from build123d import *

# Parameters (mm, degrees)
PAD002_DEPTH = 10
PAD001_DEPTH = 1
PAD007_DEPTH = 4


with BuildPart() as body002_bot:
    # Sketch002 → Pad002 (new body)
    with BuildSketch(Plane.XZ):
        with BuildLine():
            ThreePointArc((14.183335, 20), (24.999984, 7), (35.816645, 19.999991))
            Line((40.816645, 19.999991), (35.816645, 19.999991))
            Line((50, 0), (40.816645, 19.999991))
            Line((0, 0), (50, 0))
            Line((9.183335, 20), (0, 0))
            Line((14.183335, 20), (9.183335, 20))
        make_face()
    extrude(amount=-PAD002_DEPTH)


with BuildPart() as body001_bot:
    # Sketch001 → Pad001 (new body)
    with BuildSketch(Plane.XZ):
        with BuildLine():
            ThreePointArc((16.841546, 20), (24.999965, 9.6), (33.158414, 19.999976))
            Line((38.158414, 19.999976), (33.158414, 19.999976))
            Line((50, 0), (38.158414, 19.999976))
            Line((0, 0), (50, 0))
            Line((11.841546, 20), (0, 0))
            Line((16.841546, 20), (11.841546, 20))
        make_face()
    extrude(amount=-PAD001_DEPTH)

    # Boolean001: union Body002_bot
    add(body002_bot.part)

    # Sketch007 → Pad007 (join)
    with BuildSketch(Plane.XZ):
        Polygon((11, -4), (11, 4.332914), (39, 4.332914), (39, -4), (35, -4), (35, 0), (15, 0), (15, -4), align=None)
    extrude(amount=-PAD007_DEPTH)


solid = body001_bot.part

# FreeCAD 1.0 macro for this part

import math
import FreeCAD as App
import Part
import Sketcher

V = App.Vector
Q = App.Units.Quantity

doc = App.newDocument("Part")
params = doc.addObject("Spreadsheet::Sheet", "Params")
for row, (alias, value) in enumerate([
    ("sketch1_radius", "11 mm"),
    ("sketch1_width", "5 mm"),
    ("sketch1_width2", "50 mm"),
    ("pad1_length", "10 mm"),
    ("sketch2_radius", "8.4 mm"),
    ("sketch2_width", "5 mm"),
    ("sketch2_width2", "50 mm"),
    ("pad2_length", "1 mm"),
    ("sketch3_width", "4 mm"),
    ("sketch3_width2", "20 mm"),
    ("pad3_length", "4 mm"),
], start=1):
    params.set(f"A{row}", alias)
    params.set(f"B{row}", "=" + value)
    params.setAlias(f"B{row}", alias)

body = doc.addObject("PartDesign::Body", "Body")

sketch1 = body.newObject("Sketcher::SketchObject", "Sketch")
sketch1.AttachmentSupport = (doc.getObject("XZ_Plane"), [""])
sketch1.MapMode = "FlatFace"
sketch1.addGeometry(Part.ArcOfCircle(Part.Circle(V(25, 18, 0), V(0, 0, 1), 11), math.radians(170), math.radians(370)), False)
sketch1.addGeometry(Part.LineSegment(V(14, 20, 0), V(9, 20, 0)), False)
sketch1.addGeometry(Part.LineSegment(V(9, 20, 0), V(0, 0, 0)), False)
sketch1.addGeometry(Part.LineSegment(V(0, 0, 0), V(50, 0, 0)), False)
sketch1.addGeometry(Part.LineSegment(V(50, 0, 0), V(41, 20, 0)), False)
sketch1.addGeometry(Part.LineSegment(V(41, 20, 0), V(36, 20, 0)), False)
sketch1.addConstraint(Sketcher.Constraint("Coincident", 0, 1, 1, 1))
sketch1.addConstraint(Sketcher.Constraint("Coincident", 1, 2, 2, 1))
sketch1.addConstraint(Sketcher.Constraint("Coincident", 2, 2, 3, 1))
sketch1.addConstraint(Sketcher.Constraint("Coincident", 3, 2, 4, 1))
sketch1.addConstraint(Sketcher.Constraint("Coincident", 4, 2, 5, 1))
sketch1.addConstraint(Sketcher.Constraint("Coincident", 5, 2, 0, 2))
sketch1.addConstraint(Sketcher.Constraint("Horizontal", 1))
sketch1.addConstraint(Sketcher.Constraint("Horizontal", 3))
sketch1.addConstraint(Sketcher.Constraint("Horizontal", 5))
sketch1.addConstraint(Sketcher.Constraint("Coincident", 2, 2, -1, 1))
sketch1.addConstraint(Sketcher.Constraint("Equal", 1, 5))
sketch1.addConstraint(Sketcher.Constraint("Equal", 2, 4))
sketch1.addConstraint(Sketcher.Constraint("Radius", 0, Q("11 mm")))
sketch1.addConstraint(Sketcher.Constraint("DistanceX", 1, 2, 1, 1, Q("5 mm")))
sketch1.addConstraint(Sketcher.Constraint("DistanceX", 3, 1, 3, 2, Q("50 mm")))
sketch1.addConstraint(Sketcher.Constraint("DistanceY", -1, 1, 0, 3, Q("18 mm")))
sketch1.addConstraint(Sketcher.Constraint("DistanceY", -1, 1, 0, 1, Q("20 mm")))
sketch1.addConstraint(Sketcher.Constraint("Distance", 2, Q("22.007581 mm")))
sketch1.setExpression("Constraints[12]", "Params.sketch1_radius")
sketch1.setExpression("Constraints[13]", "Params.sketch1_width")
sketch1.setExpression("Constraints[14]", "Params.sketch1_width2")
pad1 = body.newObject("PartDesign::Pad", "Pad")
pad1.Profile = sketch1
pad1.setExpression("Length", "Params.pad1_length")
pad1.Reversed = True
body2 = doc.addObject("PartDesign::Body", "Body001")

sketch2 = body2.newObject("Sketcher::SketchObject", "Sketch001")
sketch2.AttachmentSupport = (doc.getObject("XZ_Plane001"), [""])
sketch2.MapMode = "FlatFace"
sketch2.addGeometry(Part.ArcOfCircle(Part.Circle(V(25, 18, 0), V(0, 0, 1), 8), math.radians(166), math.radians(374)), False)
sketch2.addGeometry(Part.LineSegment(V(17, 20, 0), V(12, 20, 0)), False)
sketch2.addGeometry(Part.LineSegment(V(12, 20, 0), V(0, 0, 0)), False)
sketch2.addGeometry(Part.LineSegment(V(0, 0, 0), V(50, 0, 0)), False)
sketch2.addGeometry(Part.LineSegment(V(50, 0, 0), V(38, 20, 0)), False)
sketch2.addGeometry(Part.LineSegment(V(38, 20, 0), V(33, 20, 0)), False)
sketch2.addConstraint(Sketcher.Constraint("Coincident", 0, 1, 1, 1))
sketch2.addConstraint(Sketcher.Constraint("Coincident", 1, 2, 2, 1))
sketch2.addConstraint(Sketcher.Constraint("Coincident", 2, 2, 3, 1))
sketch2.addConstraint(Sketcher.Constraint("Coincident", 3, 2, 4, 1))
sketch2.addConstraint(Sketcher.Constraint("Coincident", 4, 2, 5, 1))
sketch2.addConstraint(Sketcher.Constraint("Coincident", 5, 2, 0, 2))
sketch2.addConstraint(Sketcher.Constraint("Horizontal", 1))
sketch2.addConstraint(Sketcher.Constraint("Horizontal", 3))
sketch2.addConstraint(Sketcher.Constraint("Horizontal", 5))
sketch2.addConstraint(Sketcher.Constraint("Coincident", 2, 2, -1, 1))
sketch2.addConstraint(Sketcher.Constraint("Equal", 1, 5))
sketch2.addConstraint(Sketcher.Constraint("Equal", 2, 4))
sketch2.addConstraint(Sketcher.Constraint("Radius", 0, Q("8.4 mm")))
sketch2.addConstraint(Sketcher.Constraint("DistanceX", 1, 2, 1, 1, Q("5 mm")))
sketch2.addConstraint(Sketcher.Constraint("DistanceX", 3, 1, 3, 2, Q("50 mm")))
sketch2.addConstraint(Sketcher.Constraint("DistanceY", -1, 1, 0, 3, Q("18 mm")))
sketch2.addConstraint(Sketcher.Constraint("DistanceY", -1, 1, 0, 1, Q("20 mm")))
sketch2.addConstraint(Sketcher.Constraint("Distance", 2, Q("23.242681 mm")))
sketch2.setExpression("Constraints[12]", "Params.sketch2_radius")
sketch2.setExpression("Constraints[13]", "Params.sketch2_width")
sketch2.setExpression("Constraints[14]", "Params.sketch2_width2")
pad2 = body2.newObject("PartDesign::Pad", "Pad001")
pad2.Profile = sketch2
pad2.setExpression("Length", "Params.pad2_length")
pad2.Reversed = True
doc.recompute()

boolean = body2.newObject("PartDesign::Boolean", "Boolean")
boolean.Type = "Fuse"
boolean.addObjects([body])

sketch3 = body2.newObject("Sketcher::SketchObject", "Sketch002")
sketch3.AttachmentSupport = (doc.getObject("XZ_Plane001"), [""])
sketch3.MapMode = "FlatFace"
sketch3.addGeometry(Part.LineSegment(V(11, 4.3, 0), V(11, -4, 0)), False)
sketch3.addGeometry(Part.LineSegment(V(11, -4, 0), V(15, -4, 0)), False)
sketch3.addGeometry(Part.LineSegment(V(15, -4, 0), V(15, 0, 0)), False)
sketch3.addGeometry(Part.LineSegment(V(15, 0, 0), V(35, 0, 0)), False)
sketch3.addGeometry(Part.LineSegment(V(35, 0, 0), V(35, -4, 0)), False)
sketch3.addGeometry(Part.LineSegment(V(35, -4, 0), V(39, -4, 0)), False)
sketch3.addGeometry(Part.LineSegment(V(39, -4, 0), V(39, 4.3, 0)), False)
sketch3.addGeometry(Part.LineSegment(V(39, 4.3, 0), V(11, 4.3, 0)), False)
sketch3.addConstraint(Sketcher.Constraint("Coincident", 0, 2, 1, 1))
sketch3.addConstraint(Sketcher.Constraint("Coincident", 1, 2, 2, 1))
sketch3.addConstraint(Sketcher.Constraint("Coincident", 2, 2, 3, 1))
sketch3.addConstraint(Sketcher.Constraint("Coincident", 3, 2, 4, 1))
sketch3.addConstraint(Sketcher.Constraint("Coincident", 4, 2, 5, 1))
sketch3.addConstraint(Sketcher.Constraint("Coincident", 5, 2, 6, 1))
sketch3.addConstraint(Sketcher.Constraint("Coincident", 6, 2, 7, 1))
sketch3.addConstraint(Sketcher.Constraint("Coincident", 7, 2, 0, 1))
sketch3.addConstraint(Sketcher.Constraint("Vertical", 0))
sketch3.addConstraint(Sketcher.Constraint("Horizontal", 1))
sketch3.addConstraint(Sketcher.Constraint("Vertical", 2))
sketch3.addConstraint(Sketcher.Constraint("Horizontal", 3))
sketch3.addConstraint(Sketcher.Constraint("Vertical", 4))
sketch3.addConstraint(Sketcher.Constraint("Horizontal", 5))
sketch3.addConstraint(Sketcher.Constraint("Vertical", 6))
sketch3.addConstraint(Sketcher.Constraint("Horizontal", 7))
sketch3.addConstraint(Sketcher.Constraint("PointOnObject", 2, 2, -1))
sketch3.addConstraint(Sketcher.Constraint("Horizontal", 1, 2, 4, 2))
sketch3.addConstraint(Sketcher.Constraint("Equal", 1, 5))
sketch3.addConstraint(Sketcher.Constraint("Equal", 5, 2))
sketch3.addConstraint(Sketcher.Constraint("DistanceX", 1, 1, 1, 2, Q("4 mm")))
sketch3.addConstraint(Sketcher.Constraint("DistanceX", 3, 1, 3, 2, Q("20 mm")))
sketch3.addConstraint(Sketcher.Constraint("DistanceX", -1, 1, 0, 2, Q("11 mm")))
sketch3.addConstraint(Sketcher.Constraint("DistanceY", 0, 2, 0, 1, Q("8.332914 mm")))
sketch3.setExpression("Constraints[20]", "Params.sketch3_width")
sketch3.setExpression("Constraints[21]", "Params.sketch3_width2")
pad3 = body2.newObject("PartDesign::Pad", "Pad002")
pad3.Profile = sketch3
pad3.setExpression("Length", "Params.pad3_length")
pad3.Reversed = True

doc.recompute()
